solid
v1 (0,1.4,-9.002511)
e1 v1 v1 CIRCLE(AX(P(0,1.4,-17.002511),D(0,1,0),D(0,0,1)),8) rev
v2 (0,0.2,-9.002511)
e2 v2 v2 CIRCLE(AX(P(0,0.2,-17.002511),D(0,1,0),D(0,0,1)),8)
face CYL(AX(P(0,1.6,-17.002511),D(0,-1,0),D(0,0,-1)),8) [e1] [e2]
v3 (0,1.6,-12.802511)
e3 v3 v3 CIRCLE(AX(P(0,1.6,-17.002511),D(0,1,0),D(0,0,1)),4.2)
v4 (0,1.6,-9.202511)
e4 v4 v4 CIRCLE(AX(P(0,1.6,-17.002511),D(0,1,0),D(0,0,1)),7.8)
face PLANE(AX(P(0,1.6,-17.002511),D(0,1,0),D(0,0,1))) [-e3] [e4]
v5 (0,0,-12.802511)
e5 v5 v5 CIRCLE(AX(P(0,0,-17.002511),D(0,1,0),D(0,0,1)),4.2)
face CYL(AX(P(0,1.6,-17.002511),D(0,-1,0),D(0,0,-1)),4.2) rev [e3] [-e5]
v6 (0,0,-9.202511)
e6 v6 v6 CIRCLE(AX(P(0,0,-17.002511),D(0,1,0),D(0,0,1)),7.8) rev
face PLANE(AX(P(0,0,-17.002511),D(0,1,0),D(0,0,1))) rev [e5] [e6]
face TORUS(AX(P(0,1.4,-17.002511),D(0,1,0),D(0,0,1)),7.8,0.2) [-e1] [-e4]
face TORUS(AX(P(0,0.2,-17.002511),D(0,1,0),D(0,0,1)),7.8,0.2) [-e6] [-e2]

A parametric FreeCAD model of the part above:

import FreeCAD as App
import Part
import Sketcher


def edges_at(feature, points):
    """Names of the edges that pass closest to the given points."""
    edges = feature.Shape.Edges
    near = lambda p: min(range(len(edges)), key=lambda i: edges[i].distToShape(Part.Vertex(*p))[0])
    return sorted({f"Edge{near(p) + 1}" for p in points})

doc = App.newDocument("Part")
body = doc.addObject("PartDesign::Body", "Body")

sketch1 = body.newObject("Sketcher::SketchObject", "Sketch")
sketch1.AttachmentSupport = (doc.getObject("XZ_Plane"), [""])
sketch1.MapMode = "FlatFace"
sketch1.addGeometry([
    Part.Circle(App.Vector(0, -17, 0), App.Vector(0, 0, 1), 8),
    Part.Circle(App.Vector(0, -17, 0), App.Vector(0, 0, 1), 4.2),
], False)
sketch1.addConstraint([
    Sketcher.Constraint("Coincident", 1, 3, 0, 3),
    Sketcher.Constraint("PointOnObject", 0, 3, -2),
    Sketcher.Constraint("Diameter", 0, 16.0),
    Sketcher.Constraint("Diameter", 1, 8.4),
    Sketcher.Constraint("DistanceY", 0, 3, -1, 1, 17.002511),
])
pad1 = body.newObject("PartDesign::Pad", "Pad")
pad1.Profile = sketch1
pad1.Length = 1.6
pad1.Reversed = True
doc.recompute()

fillet = body.newObject("PartDesign::Fillet", "Fillet")
fillet.Base = (pad1, edges_at(pad1, [(-8, 0, -17.003), (-8, 1.6, -17.003)]))
fillet.Radius = 0.2

doc.recompute()
